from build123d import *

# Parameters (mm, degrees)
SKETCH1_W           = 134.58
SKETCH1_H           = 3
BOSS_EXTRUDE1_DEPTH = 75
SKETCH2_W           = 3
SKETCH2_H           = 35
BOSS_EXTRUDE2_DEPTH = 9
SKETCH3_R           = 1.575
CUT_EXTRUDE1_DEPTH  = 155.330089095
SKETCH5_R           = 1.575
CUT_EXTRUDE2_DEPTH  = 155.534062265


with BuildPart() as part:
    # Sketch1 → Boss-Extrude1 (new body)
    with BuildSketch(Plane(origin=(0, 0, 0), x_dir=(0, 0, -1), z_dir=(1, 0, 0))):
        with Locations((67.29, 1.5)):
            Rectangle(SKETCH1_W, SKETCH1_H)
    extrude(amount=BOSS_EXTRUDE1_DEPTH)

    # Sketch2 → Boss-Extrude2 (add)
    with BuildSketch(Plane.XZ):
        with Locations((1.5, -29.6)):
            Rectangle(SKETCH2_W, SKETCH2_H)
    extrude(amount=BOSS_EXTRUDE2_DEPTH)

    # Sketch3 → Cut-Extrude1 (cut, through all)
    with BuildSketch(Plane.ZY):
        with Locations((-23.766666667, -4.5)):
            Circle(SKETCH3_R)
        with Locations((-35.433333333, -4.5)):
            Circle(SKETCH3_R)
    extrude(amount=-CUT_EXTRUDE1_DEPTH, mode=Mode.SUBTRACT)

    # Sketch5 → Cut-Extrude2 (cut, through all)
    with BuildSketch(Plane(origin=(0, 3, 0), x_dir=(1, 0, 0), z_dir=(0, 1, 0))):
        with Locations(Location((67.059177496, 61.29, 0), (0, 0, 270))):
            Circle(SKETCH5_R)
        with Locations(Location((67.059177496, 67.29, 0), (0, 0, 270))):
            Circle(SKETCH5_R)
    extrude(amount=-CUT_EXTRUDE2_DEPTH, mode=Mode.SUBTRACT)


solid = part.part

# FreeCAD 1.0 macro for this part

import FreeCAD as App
import Part
import Sketcher
Q = App.Units.Quantity


def add_polygon(sketch, points):
    """Adds a closed chain of lines whose ends are joined by coincident constraints."""
    first, n = sketch.GeometryCount, len(points)
    for a, b in zip(points, points[1:] + points[:1]):
        sketch.addGeometry(Part.LineSegment(App.Vector(*a, 0), App.Vector(*b, 0)), False)
    for i in range(n):
        sketch.addConstraint(Sketcher.Constraint("Coincident", first + i, 2, first + (i + 1) % n, 1))

doc = App.newDocument("Part")
body = doc.addObject("PartDesign::Body", "Body")

sketch1 = body.newObject("Sketcher::SketchObject", "Sketch")
sketch1.AttachmentSupport = (doc.getObject("YZ_Plane"), [""])
sketch1.MapMode = "FlatFace"
add_polygon(sketch1, [(3, 0), (0, 0), (0, -134.6), (3, -134.6)])
sketch1.addConstraint([
    Sketcher.Constraint("Horizontal", 0),
    Sketcher.Constraint("Vertical", 1),
    Sketcher.Constraint("Horizontal", 2),
    Sketcher.Constraint("Vertical", 3),
    Sketcher.Constraint("Coincident", 0, 2, -1, 1),
    Sketcher.Constraint("DistanceX", 0, 2, 0, 1, Q("3 mm")),
    Sketcher.Constraint("DistanceY", 1, 2, 1, 1, Q("134.58 mm")),
])
pad1 = body.newObject("PartDesign::Pad", "Pad")
pad1.Profile = sketch1
pad1.Length = 75

sketch2 = body.newObject("Sketcher::SketchObject", "Sketch001")
sketch2.AttachmentSupport = (doc.getObject("XZ_Plane"), [""])
sketch2.MapMode = "FlatFace"
add_polygon(sketch2, [(0, -12.1), (0, -47.1), (3, -47.1), (3, -12.1)])
sketch2.addConstraint([
    Sketcher.Constraint("Vertical", 0),
    Sketcher.Constraint("Horizontal", 1),
    Sketcher.Constraint("Vertical", 2),
    Sketcher.Constraint("Horizontal", 3),
    Sketcher.Constraint("PointOnObject", 0, 2, -2),
    Sketcher.Constraint("DistanceX", 1, 1, 1, 2, Q("3 mm")),
    Sketcher.Constraint("DistanceY", 0, 2, 0, 1, Q("35 mm")),
    Sketcher.Constraint("DistanceY", 0, 2, -1, 1, Q("47.1 mm")),
])
pad2 = body.newObject("PartDesign::Pad", "Pad001")
pad2.Profile = sketch2
pad2.Length = 9

sketch3 = body.newObject("Sketcher::SketchObject", "Sketch002")
sketch3.AttachmentSupport = (doc.getObject("YZ_Plane"), [""])
sketch3.MapMode = "FlatFace"
sketch3.addGeometry([
    Part.Circle(App.Vector(-4.5, -23.8, 0), App.Vector(0, 0, 1), 1.6),
    Part.Circle(App.Vector(-4.5, -35.4, 0), App.Vector(0, 0, 1), 1.6),
], False)
sketch3.addConstraint([
    Sketcher.Constraint("Equal", 0, 1),
    Sketcher.Constraint("Vertical", 0, 3, 1, 3),
    Sketcher.Constraint("Diameter", 0, Q("3.15 mm")),
    Sketcher.Constraint("DistanceX", 0, 3, -1, 1, Q("4.5 mm")),
    Sketcher.Constraint("DistanceY", 0, 3, -1, 1, Q("23.766667 mm")),
    Sketcher.Constraint("DistanceY", 1, 3, -1, 1, Q("35.433333 mm")),
])
pocket1 = body.newObject("PartDesign::Pocket", "Pocket")
pocket1.Profile = sketch3
pocket1.Type = "ThroughAll"
pocket1.Reversed = True

sketch4 = body.newObject("Sketcher::SketchObject", "Sketch003")
sketch4.AttachmentSupport = (doc.getObject("XZ_Plane"), [""])
sketch4.MapMode = "FlatFace"
sketch4.AttachmentOffset = App.Placement(App.Vector(0, 0, -3), App.Rotation())
sketch4.addGeometry([
    Part.Circle(App.Vector(67.1, -61.3, 0), App.Vector(0, 0, 1), 1.6),
    Part.Circle(App.Vector(67.1, -67.3, 0), App.Vector(0, 0, 1), 1.6),
], False)
sketch4.addConstraint([
    Sketcher.Constraint("Equal", 0, 1),
    Sketcher.Constraint("Vertical", 0, 3, 1, 3),
    Sketcher.Constraint("Diameter", 0, Q("3.15 mm")),
    Sketcher.Constraint("DistanceY", 1, 3, 0, 3, Q("6 mm")),
    Sketcher.Constraint("DistanceY", 0, 3, -1, 1, Q("61.29 mm")),
    Sketcher.Constraint("DistanceX", -1, 1, 0, 3, Q("67.059177 mm")),
])
pocket2 = body.newObject("PartDesign::Pocket", "Pocket001")
pocket2.Profile = sketch4
pocket2.Type = "ThroughAll"
pocket2.Reversed = True

doc.recompute()
